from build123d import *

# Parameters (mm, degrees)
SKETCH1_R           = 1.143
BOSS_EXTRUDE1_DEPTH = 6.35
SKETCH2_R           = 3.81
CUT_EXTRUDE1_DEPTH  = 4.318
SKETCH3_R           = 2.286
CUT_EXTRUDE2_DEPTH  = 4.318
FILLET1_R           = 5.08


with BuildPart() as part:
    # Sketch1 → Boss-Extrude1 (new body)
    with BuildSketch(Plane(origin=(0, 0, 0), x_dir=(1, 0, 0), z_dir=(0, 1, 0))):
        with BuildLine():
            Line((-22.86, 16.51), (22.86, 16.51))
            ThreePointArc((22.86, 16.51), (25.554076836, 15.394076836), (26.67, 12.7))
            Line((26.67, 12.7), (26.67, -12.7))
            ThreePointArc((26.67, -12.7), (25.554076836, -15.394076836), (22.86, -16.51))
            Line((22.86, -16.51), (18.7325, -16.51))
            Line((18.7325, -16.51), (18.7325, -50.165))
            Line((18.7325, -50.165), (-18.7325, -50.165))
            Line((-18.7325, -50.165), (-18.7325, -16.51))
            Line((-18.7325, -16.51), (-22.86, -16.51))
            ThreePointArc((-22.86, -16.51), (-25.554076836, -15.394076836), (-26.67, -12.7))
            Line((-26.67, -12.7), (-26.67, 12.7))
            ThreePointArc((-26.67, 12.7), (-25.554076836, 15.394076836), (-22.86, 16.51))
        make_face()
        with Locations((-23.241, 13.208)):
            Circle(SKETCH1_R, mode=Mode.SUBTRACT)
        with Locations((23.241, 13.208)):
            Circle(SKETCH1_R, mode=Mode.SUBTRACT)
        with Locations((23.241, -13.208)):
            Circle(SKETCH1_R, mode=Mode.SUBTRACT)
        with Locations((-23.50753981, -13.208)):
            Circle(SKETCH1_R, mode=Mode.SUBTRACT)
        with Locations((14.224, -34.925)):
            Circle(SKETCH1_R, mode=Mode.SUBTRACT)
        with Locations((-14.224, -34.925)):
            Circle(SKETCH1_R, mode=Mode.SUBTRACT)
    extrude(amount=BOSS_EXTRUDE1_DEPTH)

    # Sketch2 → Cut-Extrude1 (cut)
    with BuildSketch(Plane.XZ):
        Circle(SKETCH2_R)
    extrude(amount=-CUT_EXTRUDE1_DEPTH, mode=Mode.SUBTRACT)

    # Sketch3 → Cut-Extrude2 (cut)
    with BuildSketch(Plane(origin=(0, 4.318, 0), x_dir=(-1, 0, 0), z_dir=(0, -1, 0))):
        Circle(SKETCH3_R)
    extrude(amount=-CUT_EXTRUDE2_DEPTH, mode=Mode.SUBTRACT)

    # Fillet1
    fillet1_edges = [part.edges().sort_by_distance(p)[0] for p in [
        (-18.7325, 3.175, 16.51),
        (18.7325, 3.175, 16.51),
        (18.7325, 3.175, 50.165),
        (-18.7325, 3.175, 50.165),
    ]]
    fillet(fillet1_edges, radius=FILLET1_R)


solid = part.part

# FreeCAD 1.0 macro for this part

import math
import FreeCAD as App
import Part
import Sketcher

V = App.Vector
Q = App.Units.Quantity


def edges_at(feature, points):
    """Names of the edges that pass closest to the given points."""
    edges = feature.Shape.Edges
    near = lambda p: min(range(len(edges)), key=lambda i: edges[i].distToShape(Part.Vertex(*p))[0])
    return sorted({f"Edge{near(p) + 1}" for p in points})

doc = App.newDocument("Part")
params = doc.addObject("Spreadsheet::Sheet", "Params")
for row, (alias, value) in enumerate([
    ("sketch1_diameter", "0.09 in"),
    ("sketch1_height", "1 in"),
    ("sketch1_radius", "0.15 in"),
    ("sketch1_width", "1.8 in"),
    ("sketch1_width2", "1.475 in"),
    ("pad1_length", "0.25 in"),
    ("sketch2_diameter", "0.3 in"),
    ("pocket1_length", "0.17 in"),
    ("sketch3_diameter", "0.18 in"),
    ("pocket2_length", "0.17 in"),
    ("fillet_radius", "0.2 in"),
], start=1):
    params.set(f"A{row}", alias)
    params.set(f"B{row}", "=" + value)
    params.setAlias(f"B{row}", alias)

body = doc.addObject("PartDesign::Body", "Body")

sketch1 = body.newObject("Sketcher::SketchObject", "Sketch")
sketch1.AttachmentSupport = (doc.getObject("XZ_Plane"), [""])
sketch1.MapMode = "FlatFace"
sketch1.addGeometry([
    Part.LineSegment(V(22.9, -16.5, 0), V(-22.9, -16.5, 0)),
    Part.ArcOfCircle(Part.Circle(V(-22.9, -12.7, 0), V(0, 0, 1), 3.8), math.radians(-180), math.radians(-90)),
    Part.LineSegment(V(-26.7, -12.7, 0), V(-26.7, 12.7, 0)),
    Part.ArcOfCircle(Part.Circle(V(-22.9, 12.7, 0), V(0, 0, 1), 3.8), math.radians(90), math.radians(180)),
    Part.LineSegment(V(-22.9, 16.5, 0), V(-18.7, 16.5, 0)),
    Part.LineSegment(V(-18.7, 16.5, 0), V(-18.7, 50.2, 0)),
    Part.LineSegment(V(-18.7, 50.2, 0), V(18.7, 50.2, 0)),
    Part.LineSegment(V(18.7, 50.2, 0), V(18.7, 16.5, 0)),
    Part.LineSegment(V(18.7, 16.5, 0), V(22.9, 16.5, 0)),
    Part.ArcOfCircle(Part.Circle(V(22.9, 12.7, 0), V(0, 0, 1), 3.8), math.radians(0), math.radians(90)),
    Part.LineSegment(V(26.7, 12.7, 0), V(26.7, -12.7, 0)),
    Part.ArcOfCircle(Part.Circle(V(22.9, -12.7, 0), V(0, 0, 1), 3.8), math.radians(-90), math.radians(0)),
    Part.Circle(V(14.2, 34.9, 0), V(0, 0, 1), 1.1),
    Part.Circle(V(23.2, 13.2, 0), V(0, 0, 1), 1.1),
    Part.Circle(V(-14.2, 34.9, 0), V(0, 0, 1), 1.1),
    Part.Circle(V(-23.5, 13.2, 0), V(0, 0, 1), 1.1),
    Part.Circle(V(23.2, -13.2, 0), V(0, 0, 1), 1.1),
    Part.Circle(V(-23.2, -13.2, 0), V(0, 0, 1), 1.1),
], False)
sketch1.addConstraint([
    Sketcher.Constraint("Tangent", 0, 2, 1, 2),
    Sketcher.Constraint("Tangent", 1, 1, 2, 1),
    Sketcher.Constraint("Tangent", 2, 2, 3, 2),
    Sketcher.Constraint("Tangent", 3, 1, 4, 1),
    Sketcher.Constraint("Coincident", 4, 2, 5, 1),
    Sketcher.Constraint("Coincident", 5, 2, 6, 1),
    Sketcher.Constraint("Coincident", 6, 2, 7, 1),
    Sketcher.Constraint("Coincident", 7, 2, 8, 1),
    Sketcher.Constraint("Tangent", 8, 2, 9, 2),
    Sketcher.Constraint("Tangent", 9, 1, 10, 1),
    Sketcher.Constraint("Tangent", 10, 2, 11, 2),
    Sketcher.Constraint("Tangent", 11, 1, 0, 1),
    Sketcher.Constraint("Horizontal", 0),
    Sketcher.Constraint("Vertical", 2),
    Sketcher.Constraint("Horizontal", 4),
    Sketcher.Constraint("Vertical", 5),
    Sketcher.Constraint("Horizontal", 6),
    Sketcher.Constraint("Vertical", 7),
    Sketcher.Constraint("Horizontal", 8),
    Sketcher.Constraint("Vertical", 10),
    Sketcher.Constraint("Equal", 1, 3),
    Sketcher.Constraint("Equal", 3, 9),
    Sketcher.Constraint("Equal", 9, 11),
    Sketcher.Constraint("Equal", 12, 13),
    Sketcher.Constraint("Equal", 13, 14),
    Sketcher.Constraint("Equal", 14, 15),
    Sketcher.Constraint("Equal", 15, 16),
    Sketcher.Constraint("Equal", 16, 17),
    Sketcher.Constraint("Symmetric", 1, 3, 9, 3, -1, 1),
    Sketcher.Constraint("Symmetric", 13, 3, 17, 3, -1, 1),
    Sketcher.Constraint("Symmetric", 12, 3, 14, 3, -2),
    Sketcher.Constraint("Symmetric", 16, 3, 17, 3, -2),
    Sketcher.Constraint("Symmetric", 4, 2, 7, 2, -2),
    Sketcher.Constraint("Horizontal", 13, 3, 15, 3),
    Sketcher.Constraint("Diameter", 12, Q("0.09 in")),
    Sketcher.Constraint("DistanceY", 2, 1, 2, 2, Q("1 in")),
    Sketcher.Constraint("Radius", 1, Q("0.15 in")),
    Sketcher.Constraint("DistanceX", 0, 2, 0, 1, Q("1.8 in")),
    Sketcher.Constraint("DistanceY", 14, 3, 5, 2, Q("0.6 in")),
    Sketcher.Constraint("DistanceX", 6, 1, 6, 2, Q("1.475 in")),
    Sketcher.Constraint("DistanceY", 5, 1, 5, 2, Q("1.325 in")),
    Sketcher.Constraint("DistanceX", -1, 1, 12, 3, Q("0.56 in")),
    Sketcher.Constraint("DistanceY", -1, 1, 13, 3, Q("0.52 in")),
    Sketcher.Constraint("DistanceX", 17, 3, 16, 3, Q("1.83 in")),
    Sketcher.Constraint("DistanceX", 15, 3, -1, 1, Q("23.50754 mm")),
])
sketch1.setExpression("Constraints[34]", "Params.sketch1_diameter")
sketch1.setExpression("Constraints[35]", "Params.sketch1_height")
sketch1.setExpression("Constraints[36]", "Params.sketch1_radius")
sketch1.setExpression("Constraints[37]", "Params.sketch1_width")
sketch1.setExpression("Constraints[39]", "Params.sketch1_width2")
pad1 = body.newObject("PartDesign::Pad", "Pad")
pad1.Profile = sketch1
pad1.setExpression("Length", "Params.pad1_length")
pad1.Reversed = True

sketch2 = body.newObject("Sketcher::SketchObject", "Sketch001")
sketch2.AttachmentSupport = (doc.getObject("XZ_Plane"), [""])
sketch2.MapMode = "FlatFace"
sketch2.addGeometry(Part.Circle(V(0, 0, 0), V(0, 0, 1), 3.8), False)
sketch2.addConstraint([
    Sketcher.Constraint("Coincident", 0, 3, -1, 1),
    Sketcher.Constraint("Diameter", 0, Q("0.3 in")),
])
sketch2.setExpression("Constraints[1]", "Params.sketch2_diameter")
pocket1 = body.newObject("PartDesign::Pocket", "Pocket")
pocket1.Profile = sketch2
pocket1.setExpression("Length", "Params.pocket1_length")

sketch3 = body.newObject("Sketcher::SketchObject", "Sketch002")
sketch3.AttachmentSupport = (doc.getObject("XZ_Plane"), [""])
sketch3.MapMode = "FlatFace"
sketch3.AttachmentOffset = App.Placement(V(0, 0, -0.17 * 25.4), App.Rotation())
sketch3.addGeometry(Part.Circle(V(0, 0, 0), V(0, 0, 1), 2.3), False)
sketch3.addConstraint([
    Sketcher.Constraint("Coincident", 0, 3, -1, 1),
    Sketcher.Constraint("Diameter", 0, Q("0.18 in")),
])
sketch3.setExpression("Constraints[1]", "Params.sketch3_diameter")
pocket2 = body.newObject("PartDesign::Pocket", "Pocket001")
pocket2.Profile = sketch3
pocket2.setExpression("Length", "Params.pocket2_length")
doc.recompute()

fillet = body.newObject("PartDesign::Fillet", "Fillet")
fillet.Base = (pocket2, edges_at(pocket2, [
    (-18.733, 3.175, 16.51),
    (18.733, 3.175, 16.51),
    (18.733, 3.175, 50.165),
    (-18.733, 3.175, 50.165),
]))
fillet.setExpression("Radius", "Params.fillet_radius")

doc.recompute()
